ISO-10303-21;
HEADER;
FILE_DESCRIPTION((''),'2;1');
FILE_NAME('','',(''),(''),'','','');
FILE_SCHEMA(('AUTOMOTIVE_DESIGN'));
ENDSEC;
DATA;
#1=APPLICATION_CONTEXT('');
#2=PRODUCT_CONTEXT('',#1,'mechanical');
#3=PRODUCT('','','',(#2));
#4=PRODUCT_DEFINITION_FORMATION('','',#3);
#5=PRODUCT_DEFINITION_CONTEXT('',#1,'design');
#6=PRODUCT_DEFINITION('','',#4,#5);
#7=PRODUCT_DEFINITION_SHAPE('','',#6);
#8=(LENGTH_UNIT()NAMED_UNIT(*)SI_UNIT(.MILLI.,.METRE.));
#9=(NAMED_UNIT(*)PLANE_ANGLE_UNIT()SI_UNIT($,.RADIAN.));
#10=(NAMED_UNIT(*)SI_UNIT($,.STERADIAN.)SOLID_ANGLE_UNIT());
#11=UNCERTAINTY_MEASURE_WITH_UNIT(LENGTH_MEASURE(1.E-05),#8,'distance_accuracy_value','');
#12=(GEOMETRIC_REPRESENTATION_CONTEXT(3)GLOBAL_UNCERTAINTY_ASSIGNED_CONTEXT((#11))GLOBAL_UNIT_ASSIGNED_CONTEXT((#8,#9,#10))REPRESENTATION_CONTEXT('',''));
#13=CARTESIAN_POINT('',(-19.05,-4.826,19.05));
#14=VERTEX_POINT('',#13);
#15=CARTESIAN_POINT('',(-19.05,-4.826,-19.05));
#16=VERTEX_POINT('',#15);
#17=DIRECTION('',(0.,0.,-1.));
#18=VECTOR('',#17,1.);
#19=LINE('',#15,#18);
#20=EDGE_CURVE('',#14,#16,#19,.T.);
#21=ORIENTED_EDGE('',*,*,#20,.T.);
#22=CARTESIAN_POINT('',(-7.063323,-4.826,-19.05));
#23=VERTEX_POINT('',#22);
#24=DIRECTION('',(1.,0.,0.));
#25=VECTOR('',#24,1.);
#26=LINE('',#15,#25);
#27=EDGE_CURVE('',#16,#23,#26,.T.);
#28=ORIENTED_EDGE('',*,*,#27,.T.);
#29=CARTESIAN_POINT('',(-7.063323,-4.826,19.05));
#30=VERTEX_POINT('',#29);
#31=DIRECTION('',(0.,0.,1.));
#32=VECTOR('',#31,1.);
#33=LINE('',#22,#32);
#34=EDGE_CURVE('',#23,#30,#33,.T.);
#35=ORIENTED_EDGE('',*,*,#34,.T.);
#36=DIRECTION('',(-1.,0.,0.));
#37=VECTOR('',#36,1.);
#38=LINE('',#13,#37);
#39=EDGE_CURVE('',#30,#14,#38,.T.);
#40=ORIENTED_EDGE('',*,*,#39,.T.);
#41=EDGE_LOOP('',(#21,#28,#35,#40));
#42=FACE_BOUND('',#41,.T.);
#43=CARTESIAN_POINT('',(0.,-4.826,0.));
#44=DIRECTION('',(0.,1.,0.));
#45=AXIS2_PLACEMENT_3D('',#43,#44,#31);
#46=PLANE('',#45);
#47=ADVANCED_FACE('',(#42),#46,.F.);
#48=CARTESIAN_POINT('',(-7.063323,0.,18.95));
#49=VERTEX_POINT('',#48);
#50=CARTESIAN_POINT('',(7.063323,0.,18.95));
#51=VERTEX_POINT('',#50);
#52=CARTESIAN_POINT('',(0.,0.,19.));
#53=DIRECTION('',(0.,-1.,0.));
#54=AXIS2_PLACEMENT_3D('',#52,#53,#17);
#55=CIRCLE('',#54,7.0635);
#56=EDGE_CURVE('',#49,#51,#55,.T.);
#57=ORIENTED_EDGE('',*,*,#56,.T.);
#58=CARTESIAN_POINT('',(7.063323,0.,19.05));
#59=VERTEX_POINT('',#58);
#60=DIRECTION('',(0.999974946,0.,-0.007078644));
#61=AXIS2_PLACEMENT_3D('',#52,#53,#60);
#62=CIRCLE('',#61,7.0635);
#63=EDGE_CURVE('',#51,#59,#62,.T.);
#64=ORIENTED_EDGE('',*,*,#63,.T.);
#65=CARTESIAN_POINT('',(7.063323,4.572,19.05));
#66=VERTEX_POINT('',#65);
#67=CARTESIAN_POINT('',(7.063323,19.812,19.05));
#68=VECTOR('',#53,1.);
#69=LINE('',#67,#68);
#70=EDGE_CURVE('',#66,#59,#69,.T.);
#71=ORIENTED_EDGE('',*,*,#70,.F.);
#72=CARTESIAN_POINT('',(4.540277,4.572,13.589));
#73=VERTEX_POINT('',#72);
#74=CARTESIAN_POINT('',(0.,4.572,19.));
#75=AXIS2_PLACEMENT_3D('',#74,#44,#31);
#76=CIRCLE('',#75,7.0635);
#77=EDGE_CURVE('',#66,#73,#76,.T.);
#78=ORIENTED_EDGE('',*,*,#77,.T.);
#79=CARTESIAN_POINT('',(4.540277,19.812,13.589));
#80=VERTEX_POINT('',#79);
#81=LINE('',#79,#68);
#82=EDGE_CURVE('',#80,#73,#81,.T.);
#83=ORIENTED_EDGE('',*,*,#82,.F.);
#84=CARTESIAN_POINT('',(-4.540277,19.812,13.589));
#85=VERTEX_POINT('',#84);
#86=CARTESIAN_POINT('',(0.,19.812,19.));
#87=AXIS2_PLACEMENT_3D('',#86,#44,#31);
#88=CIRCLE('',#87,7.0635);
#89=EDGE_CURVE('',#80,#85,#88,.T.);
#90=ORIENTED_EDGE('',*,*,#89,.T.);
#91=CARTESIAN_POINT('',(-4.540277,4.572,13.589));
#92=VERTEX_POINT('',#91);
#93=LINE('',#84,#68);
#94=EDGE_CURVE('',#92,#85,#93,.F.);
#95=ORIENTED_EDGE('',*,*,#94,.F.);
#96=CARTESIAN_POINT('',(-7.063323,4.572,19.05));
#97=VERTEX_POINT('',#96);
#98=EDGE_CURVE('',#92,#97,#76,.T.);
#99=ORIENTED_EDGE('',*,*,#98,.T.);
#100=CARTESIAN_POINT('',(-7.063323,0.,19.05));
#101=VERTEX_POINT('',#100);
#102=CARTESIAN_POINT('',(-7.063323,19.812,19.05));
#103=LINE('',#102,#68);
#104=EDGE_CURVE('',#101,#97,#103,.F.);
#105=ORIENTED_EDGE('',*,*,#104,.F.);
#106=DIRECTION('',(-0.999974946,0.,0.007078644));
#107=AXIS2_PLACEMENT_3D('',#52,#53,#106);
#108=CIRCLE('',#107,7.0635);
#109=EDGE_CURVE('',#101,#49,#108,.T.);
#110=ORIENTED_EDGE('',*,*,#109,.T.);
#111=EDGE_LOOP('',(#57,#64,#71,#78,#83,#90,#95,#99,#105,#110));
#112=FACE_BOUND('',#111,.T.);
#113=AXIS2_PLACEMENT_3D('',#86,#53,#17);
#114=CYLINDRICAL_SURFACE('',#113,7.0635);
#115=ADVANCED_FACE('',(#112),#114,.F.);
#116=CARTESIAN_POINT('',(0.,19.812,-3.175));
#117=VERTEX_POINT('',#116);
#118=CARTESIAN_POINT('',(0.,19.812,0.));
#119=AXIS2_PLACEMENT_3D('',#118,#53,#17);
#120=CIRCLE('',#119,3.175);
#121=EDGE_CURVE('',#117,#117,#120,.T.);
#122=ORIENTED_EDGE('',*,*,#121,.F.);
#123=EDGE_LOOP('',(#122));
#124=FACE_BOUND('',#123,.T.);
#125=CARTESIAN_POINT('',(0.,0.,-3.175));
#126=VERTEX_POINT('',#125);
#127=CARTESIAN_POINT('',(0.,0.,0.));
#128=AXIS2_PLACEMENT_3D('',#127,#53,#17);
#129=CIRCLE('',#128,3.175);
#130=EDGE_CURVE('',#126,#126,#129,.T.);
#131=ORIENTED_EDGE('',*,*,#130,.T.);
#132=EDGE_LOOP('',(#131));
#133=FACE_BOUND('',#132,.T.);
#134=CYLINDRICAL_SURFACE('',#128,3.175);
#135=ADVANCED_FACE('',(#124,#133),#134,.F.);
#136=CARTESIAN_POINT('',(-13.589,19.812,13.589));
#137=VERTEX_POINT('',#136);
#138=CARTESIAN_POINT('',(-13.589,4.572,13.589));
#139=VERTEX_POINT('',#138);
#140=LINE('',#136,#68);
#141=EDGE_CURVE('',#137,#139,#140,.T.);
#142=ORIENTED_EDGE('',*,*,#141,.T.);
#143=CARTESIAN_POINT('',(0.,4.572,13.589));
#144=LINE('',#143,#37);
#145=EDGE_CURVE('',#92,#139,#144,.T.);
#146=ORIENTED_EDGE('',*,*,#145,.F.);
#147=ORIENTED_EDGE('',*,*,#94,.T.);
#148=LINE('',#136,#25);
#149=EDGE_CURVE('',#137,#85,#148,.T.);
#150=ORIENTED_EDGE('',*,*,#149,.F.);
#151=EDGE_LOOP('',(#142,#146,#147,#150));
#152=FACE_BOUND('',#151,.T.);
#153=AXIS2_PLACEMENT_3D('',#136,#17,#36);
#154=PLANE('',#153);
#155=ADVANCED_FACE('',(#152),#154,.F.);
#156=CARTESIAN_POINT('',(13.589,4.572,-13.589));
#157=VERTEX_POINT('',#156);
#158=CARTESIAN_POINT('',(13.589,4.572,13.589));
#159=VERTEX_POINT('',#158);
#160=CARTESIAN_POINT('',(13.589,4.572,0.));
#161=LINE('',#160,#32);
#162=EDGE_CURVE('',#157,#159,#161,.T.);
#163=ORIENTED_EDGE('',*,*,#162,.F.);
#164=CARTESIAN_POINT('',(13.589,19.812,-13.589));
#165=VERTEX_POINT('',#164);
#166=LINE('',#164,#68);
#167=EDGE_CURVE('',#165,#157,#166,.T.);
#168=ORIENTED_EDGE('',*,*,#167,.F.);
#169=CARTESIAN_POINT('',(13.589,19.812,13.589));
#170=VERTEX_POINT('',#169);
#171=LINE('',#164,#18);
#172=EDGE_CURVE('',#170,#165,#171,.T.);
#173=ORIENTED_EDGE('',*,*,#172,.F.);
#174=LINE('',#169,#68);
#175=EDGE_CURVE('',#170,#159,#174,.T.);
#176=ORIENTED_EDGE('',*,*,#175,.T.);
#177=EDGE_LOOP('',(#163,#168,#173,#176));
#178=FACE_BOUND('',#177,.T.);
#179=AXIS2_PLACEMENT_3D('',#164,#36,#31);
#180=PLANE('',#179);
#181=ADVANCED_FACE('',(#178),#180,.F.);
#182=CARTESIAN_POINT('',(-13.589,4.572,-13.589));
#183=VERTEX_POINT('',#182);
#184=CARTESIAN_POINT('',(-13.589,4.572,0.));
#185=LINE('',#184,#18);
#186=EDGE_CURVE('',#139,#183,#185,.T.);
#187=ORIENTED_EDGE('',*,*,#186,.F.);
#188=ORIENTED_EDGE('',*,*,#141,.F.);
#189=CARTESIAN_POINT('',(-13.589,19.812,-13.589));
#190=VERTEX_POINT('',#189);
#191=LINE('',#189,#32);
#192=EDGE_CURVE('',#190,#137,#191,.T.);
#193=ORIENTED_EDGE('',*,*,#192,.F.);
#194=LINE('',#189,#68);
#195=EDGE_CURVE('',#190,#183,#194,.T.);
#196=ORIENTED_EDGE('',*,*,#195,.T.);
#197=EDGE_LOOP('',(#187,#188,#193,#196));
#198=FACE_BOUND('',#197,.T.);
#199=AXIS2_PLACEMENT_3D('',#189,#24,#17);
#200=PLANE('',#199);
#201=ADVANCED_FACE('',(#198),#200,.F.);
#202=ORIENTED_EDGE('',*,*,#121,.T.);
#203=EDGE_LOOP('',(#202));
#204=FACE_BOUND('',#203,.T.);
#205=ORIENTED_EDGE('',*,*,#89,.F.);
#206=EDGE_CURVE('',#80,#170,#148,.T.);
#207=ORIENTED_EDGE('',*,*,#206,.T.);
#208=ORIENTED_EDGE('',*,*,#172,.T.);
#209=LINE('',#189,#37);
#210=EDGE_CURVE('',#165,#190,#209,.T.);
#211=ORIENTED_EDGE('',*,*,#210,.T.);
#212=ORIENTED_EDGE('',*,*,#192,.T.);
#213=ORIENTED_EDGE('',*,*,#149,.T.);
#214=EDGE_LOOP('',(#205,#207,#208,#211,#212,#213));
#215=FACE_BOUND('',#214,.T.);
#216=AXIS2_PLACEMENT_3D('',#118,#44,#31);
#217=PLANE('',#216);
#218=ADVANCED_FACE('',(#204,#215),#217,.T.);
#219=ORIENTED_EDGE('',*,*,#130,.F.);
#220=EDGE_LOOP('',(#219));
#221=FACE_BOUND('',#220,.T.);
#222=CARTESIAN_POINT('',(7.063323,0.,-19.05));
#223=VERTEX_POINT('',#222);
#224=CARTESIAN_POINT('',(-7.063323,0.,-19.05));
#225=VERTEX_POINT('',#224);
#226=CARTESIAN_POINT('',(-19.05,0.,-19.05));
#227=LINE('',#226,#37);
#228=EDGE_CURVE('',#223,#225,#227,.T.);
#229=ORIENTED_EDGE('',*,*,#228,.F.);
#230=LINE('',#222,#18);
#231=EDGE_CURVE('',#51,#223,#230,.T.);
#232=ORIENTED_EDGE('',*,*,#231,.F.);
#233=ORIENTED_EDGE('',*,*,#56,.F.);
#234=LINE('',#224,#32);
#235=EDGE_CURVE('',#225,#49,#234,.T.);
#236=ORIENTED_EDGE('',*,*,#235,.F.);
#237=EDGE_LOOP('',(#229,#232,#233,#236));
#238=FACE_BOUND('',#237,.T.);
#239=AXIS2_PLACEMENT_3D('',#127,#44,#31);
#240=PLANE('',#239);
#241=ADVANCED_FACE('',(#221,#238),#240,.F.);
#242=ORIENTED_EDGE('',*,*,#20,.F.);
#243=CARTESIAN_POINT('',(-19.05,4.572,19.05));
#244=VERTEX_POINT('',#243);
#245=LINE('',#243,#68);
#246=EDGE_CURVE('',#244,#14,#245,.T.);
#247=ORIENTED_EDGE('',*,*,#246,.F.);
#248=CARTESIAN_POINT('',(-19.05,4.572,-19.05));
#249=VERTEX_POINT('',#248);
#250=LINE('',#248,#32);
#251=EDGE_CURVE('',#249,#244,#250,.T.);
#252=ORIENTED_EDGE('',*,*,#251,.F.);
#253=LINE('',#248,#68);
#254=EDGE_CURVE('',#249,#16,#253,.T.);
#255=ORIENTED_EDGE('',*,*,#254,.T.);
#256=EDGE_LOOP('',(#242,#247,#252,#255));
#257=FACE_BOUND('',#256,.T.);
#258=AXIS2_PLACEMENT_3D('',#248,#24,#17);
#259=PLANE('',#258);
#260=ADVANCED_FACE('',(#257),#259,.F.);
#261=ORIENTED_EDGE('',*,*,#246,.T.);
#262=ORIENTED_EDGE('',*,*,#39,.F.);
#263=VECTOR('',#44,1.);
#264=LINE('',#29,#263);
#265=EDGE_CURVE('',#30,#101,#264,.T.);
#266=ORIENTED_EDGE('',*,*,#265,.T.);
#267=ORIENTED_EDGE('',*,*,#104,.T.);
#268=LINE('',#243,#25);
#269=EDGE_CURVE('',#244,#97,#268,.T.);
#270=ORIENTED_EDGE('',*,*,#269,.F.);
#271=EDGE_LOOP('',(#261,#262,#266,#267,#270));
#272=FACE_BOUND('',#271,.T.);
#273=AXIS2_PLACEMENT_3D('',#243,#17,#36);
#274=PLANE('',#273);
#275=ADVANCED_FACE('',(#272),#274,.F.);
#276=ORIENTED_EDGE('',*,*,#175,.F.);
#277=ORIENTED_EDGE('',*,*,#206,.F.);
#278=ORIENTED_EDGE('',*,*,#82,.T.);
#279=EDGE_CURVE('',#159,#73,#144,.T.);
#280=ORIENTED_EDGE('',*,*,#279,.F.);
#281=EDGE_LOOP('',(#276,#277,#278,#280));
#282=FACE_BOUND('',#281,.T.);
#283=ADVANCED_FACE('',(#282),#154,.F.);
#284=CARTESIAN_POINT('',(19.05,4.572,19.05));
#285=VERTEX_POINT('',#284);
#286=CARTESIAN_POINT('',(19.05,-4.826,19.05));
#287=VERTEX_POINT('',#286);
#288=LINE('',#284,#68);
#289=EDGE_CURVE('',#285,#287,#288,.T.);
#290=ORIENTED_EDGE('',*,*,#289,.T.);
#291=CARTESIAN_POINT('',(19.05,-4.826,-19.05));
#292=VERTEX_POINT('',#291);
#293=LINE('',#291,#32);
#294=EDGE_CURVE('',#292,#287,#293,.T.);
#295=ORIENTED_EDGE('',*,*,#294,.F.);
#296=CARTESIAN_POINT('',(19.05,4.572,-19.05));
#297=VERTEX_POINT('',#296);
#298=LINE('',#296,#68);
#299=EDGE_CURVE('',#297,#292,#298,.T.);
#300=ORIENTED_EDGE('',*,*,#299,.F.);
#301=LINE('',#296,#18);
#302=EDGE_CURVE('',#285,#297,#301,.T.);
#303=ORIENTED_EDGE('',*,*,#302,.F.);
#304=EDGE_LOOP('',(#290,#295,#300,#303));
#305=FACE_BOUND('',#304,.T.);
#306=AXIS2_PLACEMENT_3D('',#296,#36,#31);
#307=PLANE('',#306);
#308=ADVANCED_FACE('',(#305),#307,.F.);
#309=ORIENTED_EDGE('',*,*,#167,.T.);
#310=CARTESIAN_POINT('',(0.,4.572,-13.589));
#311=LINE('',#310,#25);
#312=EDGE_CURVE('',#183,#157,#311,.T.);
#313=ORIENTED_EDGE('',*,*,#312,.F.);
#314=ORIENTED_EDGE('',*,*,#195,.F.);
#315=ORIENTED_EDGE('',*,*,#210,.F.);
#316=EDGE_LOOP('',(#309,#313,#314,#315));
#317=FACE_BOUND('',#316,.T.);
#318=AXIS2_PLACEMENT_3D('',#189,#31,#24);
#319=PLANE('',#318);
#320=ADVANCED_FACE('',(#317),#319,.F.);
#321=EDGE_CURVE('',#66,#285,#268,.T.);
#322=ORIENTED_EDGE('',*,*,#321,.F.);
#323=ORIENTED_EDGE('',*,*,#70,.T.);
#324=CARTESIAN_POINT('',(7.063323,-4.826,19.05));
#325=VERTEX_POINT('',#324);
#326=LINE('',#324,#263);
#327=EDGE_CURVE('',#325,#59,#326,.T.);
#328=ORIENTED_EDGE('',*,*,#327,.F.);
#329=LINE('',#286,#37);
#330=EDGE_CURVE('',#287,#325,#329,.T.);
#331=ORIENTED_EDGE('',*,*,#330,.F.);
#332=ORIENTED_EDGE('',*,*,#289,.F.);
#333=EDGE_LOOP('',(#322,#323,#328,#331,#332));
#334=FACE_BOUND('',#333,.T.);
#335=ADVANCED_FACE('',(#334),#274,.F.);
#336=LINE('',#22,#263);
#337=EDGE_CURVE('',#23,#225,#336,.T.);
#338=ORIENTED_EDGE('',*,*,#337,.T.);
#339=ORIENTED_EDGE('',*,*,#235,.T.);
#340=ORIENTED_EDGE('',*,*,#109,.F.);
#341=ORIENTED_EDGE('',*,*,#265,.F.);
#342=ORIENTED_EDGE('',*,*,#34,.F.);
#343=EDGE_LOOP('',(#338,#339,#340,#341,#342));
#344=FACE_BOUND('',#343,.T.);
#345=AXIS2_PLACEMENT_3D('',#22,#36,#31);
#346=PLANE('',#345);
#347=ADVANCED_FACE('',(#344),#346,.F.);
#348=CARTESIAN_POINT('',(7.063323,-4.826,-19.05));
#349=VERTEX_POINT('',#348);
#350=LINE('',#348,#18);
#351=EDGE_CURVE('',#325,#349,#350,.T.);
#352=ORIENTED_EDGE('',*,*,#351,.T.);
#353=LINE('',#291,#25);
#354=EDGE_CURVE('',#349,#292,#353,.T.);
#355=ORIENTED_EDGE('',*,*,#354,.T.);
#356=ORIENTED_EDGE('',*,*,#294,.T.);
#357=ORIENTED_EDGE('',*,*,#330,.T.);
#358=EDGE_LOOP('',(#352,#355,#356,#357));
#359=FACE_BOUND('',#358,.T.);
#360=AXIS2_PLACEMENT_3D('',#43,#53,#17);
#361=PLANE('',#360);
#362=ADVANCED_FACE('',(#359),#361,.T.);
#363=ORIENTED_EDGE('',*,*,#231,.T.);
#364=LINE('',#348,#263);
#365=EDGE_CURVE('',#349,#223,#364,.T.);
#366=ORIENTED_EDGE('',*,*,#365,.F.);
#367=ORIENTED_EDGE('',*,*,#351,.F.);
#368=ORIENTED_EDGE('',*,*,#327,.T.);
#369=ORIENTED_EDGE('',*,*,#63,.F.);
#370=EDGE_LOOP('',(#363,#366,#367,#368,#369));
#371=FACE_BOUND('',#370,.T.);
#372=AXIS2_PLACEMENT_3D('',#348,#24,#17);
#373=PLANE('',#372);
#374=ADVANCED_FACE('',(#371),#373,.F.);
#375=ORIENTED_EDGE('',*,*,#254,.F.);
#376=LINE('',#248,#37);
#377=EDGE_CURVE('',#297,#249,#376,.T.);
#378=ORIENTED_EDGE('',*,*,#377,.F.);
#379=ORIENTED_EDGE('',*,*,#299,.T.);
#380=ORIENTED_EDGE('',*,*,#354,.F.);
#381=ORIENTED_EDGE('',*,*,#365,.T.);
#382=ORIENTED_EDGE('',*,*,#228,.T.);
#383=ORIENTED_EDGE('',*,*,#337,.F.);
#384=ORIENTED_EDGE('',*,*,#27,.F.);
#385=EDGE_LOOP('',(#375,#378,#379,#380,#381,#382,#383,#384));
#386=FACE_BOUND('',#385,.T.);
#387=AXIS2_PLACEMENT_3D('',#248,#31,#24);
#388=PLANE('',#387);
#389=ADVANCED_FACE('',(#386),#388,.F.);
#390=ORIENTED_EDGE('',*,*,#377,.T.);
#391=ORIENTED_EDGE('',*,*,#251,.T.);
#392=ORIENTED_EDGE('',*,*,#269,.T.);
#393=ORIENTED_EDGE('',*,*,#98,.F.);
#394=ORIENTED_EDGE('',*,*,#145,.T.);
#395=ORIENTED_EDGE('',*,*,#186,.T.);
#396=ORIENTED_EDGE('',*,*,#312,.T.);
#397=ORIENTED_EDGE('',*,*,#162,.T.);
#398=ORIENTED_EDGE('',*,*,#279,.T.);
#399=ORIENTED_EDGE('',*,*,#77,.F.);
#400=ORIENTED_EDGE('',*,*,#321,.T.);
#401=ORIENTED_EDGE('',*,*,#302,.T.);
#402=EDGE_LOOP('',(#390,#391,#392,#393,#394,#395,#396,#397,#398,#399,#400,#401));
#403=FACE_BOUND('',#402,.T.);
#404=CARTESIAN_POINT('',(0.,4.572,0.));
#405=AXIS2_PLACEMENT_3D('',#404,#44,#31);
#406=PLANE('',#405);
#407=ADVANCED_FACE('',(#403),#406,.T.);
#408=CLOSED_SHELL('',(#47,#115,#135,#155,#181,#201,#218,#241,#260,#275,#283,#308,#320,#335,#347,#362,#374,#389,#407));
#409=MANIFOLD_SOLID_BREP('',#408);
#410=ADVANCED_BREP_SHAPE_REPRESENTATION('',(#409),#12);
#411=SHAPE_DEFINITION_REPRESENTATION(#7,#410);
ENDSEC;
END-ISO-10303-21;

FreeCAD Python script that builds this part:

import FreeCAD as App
import Part
import Sketcher

V = App.Vector
Q = App.Units.Quantity


def add_polygon(sketch, points):
    """Adds a closed chain of lines whose ends are joined by coincident constraints."""
    first, n = sketch.GeometryCount, len(points)
    for a, b in zip(points, points[1:] + points[:1]):
        sketch.addGeometry(Part.LineSegment(App.Vector(*a, 0), App.Vector(*b, 0)), False)
    for i in range(n):
        sketch.addConstraint(Sketcher.Constraint("Coincident", first + i, 2, first + (i + 1) % n, 1))

doc = App.newDocument("Part")
body = doc.addObject("PartDesign::Body", "Body")

# Sketch on XZ plane
sketch1 = body.newObject("Sketcher::SketchObject", "Sketch")
sketch1.AttachmentSupport = (doc.getObject("XZ_Plane"), [""])
sketch1.MapMode = "FlatFace"
add_polygon(sketch1, [(-19.05, -19.05), (-19.05, 19.05), (19.05, 19.05), (19.05, -19.05)])  # lines 0-3
sketch1.addConstraint(Sketcher.Constraint("Vertical", 0))
sketch1.addConstraint(Sketcher.Constraint("Horizontal", 1))
sketch1.addConstraint(Sketcher.Constraint("Vertical", 2))
sketch1.addConstraint(Sketcher.Constraint("Horizontal", 3))
sketch1.addConstraint(Sketcher.Constraint("Symmetric", 0, 2, 2, 2, -1, 1))
sketch1.addConstraint(Sketcher.Constraint("Equal", 3, 0))
sketch1.addConstraint(Sketcher.Constraint("DistanceX", 1, 1, 1, 2, Q("1.5 in")))
pad1 = body.newObject("PartDesign::Pad", "Pad")
pad1.Profile = sketch1
pad1.Length = Q("0.18 in")
pad1.Reversed = True

# Sketch on XZ plane
sketch2 = body.newObject("Sketcher::SketchObject", "Sketch001")
sketch2.AttachmentSupport = (doc.getObject("XZ_Plane"), [""])
sketch2.MapMode = "FlatFace"
add_polygon(sketch2, [(-13.589, -13.589), (-13.589, 13.589), (13.589, 13.589), (13.589, -13.589)])  # lines 0-3
sketch2.addConstraint(Sketcher.Constraint("Vertical", 0))
sketch2.addConstraint(Sketcher.Constraint("Horizontal", 1))
sketch2.addConstraint(Sketcher.Constraint("Vertical", 2))
sketch2.addConstraint(Sketcher.Constraint("Horizontal", 3))
sketch2.addConstraint(Sketcher.Constraint("Symmetric", 0, 2, 2, 2, -1, 1))
sketch2.addConstraint(Sketcher.Constraint("Equal", 3, 0))
sketch2.addConstraint(Sketcher.Constraint("DistanceX", 1, 1, 1, 2, Q("1.07 in")))
pad2 = body.newObject("PartDesign::Pad", "Pad001")
pad2.Profile = sketch2
pad2.Length = Q("0.78 in")
pad2.Reversed = True

# Sketch on XZ plane
sketch3 = body.newObject("Sketcher::SketchObject", "Sketch002")
sketch3.AttachmentSupport = (doc.getObject("XZ_Plane"), [""])
sketch3.MapMode = "FlatFace"
sketch3.addGeometry(Part.Circle(V(0, 19, 0), V(0, 0, 1), 7.0635), False)
sketch3.addConstraint(Sketcher.Constraint("PointOnObject", 0, 3, -2))
sketch3.addConstraint(Sketcher.Constraint("Diameter", 0, 14.127))
sketch3.addConstraint(Sketcher.Constraint("DistanceY", -1, 1, 0, 3, 19.0))
pocket1 = body.newObject("PartDesign::Pocket", "Pocket")
pocket1.Profile = sketch3
pocket1.Type = "ThroughAll"

# Sketch on XZ plane
sketch4 = body.newObject("Sketcher::SketchObject", "Sketch003")
sketch4.AttachmentSupport = (doc.getObject("XZ_Plane"), [""])
sketch4.MapMode = "FlatFace"
sketch4.addGeometry(Part.Circle(V(0, 0, 0), V(0, 0, 1), 3.175), False)
sketch4.addConstraint(Sketcher.Constraint("Coincident", 0, 3, -1, 1))
sketch4.addConstraint(Sketcher.Constraint("Diameter", 0, Q("0.25 in")))
doc.recompute()
hole = body.newObject("PartDesign::Hole", "Hole")
hole.Profile = sketch4
hole.ThreadType = "None"
hole.Diameter = Q("0.25 in")
hole.DepthType = "ThroughAll"

# Sketch on XZ plane
sketch5 = body.newObject("Sketcher::SketchObject", "Sketch004")
sketch5.AttachmentSupport = (doc.getObject("XZ_Plane"), [""])
sketch5.MapMode = "FlatFace"
add_polygon(sketch5, [(7.063323, 19.05), (7.063323, -19.05), (19.05, -19.05), (19.05, 19.05)])  # lines 0-3
add_polygon(sketch5, [(-19.05, 19.05), (-19.05, -19.05), (-7.063323, -19.05), (-7.063323, 19.05)])  # lines 4-7
sketch5.addConstraint(Sketcher.Constraint("Vertical", 0))
sketch5.addConstraint(Sketcher.Constraint("Horizontal", 1))
sketch5.addConstraint(Sketcher.Constraint("Vertical", 2))
sketch5.addConstraint(Sketcher.Constraint("Horizontal", 3))
sketch5.addConstraint(Sketcher.Constraint("Vertical", 4))
sketch5.addConstraint(Sketcher.Constraint("Horizontal", 5))
sketch5.addConstraint(Sketcher.Constraint("Vertical", 6))
sketch5.addConstraint(Sketcher.Constraint("Horizontal", 7))
sketch5.addConstraint(Sketcher.Constraint("Symmetric", 2, 2, 4, 2, -1, 1))
sketch5.addConstraint(Sketcher.Constraint("Symmetric", 0, 2, 6, 2, -1, 1))
sketch5.addConstraint(Sketcher.Constraint("Horizontal", 1, 2, 4, 2))
sketch5.addConstraint(Sketcher.Constraint("DistanceY", 0, 2, 0, 1, Q("1.5 in")))
sketch5.addConstraint(Sketcher.Constraint("DistanceX", 4, 2, 1, 2, Q("1.5 in")))
sketch5.addConstraint(Sketcher.Constraint("DistanceX", 1, 1, 1, 2, 11.986677))
pad3 = body.newObject("PartDesign::Pad", "Pad002")
pad3.Profile = sketch5
pad3.Length = Q("0.19 in")

doc.recompute()
